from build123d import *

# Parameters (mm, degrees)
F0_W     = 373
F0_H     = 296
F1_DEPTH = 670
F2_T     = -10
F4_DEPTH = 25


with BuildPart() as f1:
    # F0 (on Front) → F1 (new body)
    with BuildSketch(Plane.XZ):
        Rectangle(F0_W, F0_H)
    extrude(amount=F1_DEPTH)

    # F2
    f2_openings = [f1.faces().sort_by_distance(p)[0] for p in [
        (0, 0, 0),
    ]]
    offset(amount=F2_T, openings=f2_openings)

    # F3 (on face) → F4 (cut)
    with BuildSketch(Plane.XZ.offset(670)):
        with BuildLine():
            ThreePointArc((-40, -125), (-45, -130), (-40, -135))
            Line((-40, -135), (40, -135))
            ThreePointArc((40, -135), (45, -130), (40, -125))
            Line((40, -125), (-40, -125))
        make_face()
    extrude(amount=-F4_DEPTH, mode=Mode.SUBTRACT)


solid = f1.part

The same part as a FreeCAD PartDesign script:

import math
import FreeCAD as App
import Part
import Sketcher
from FreeCAD import Vector


def faces_at(feature, points):
    """Names of the faces that lie closest to the given points."""
    faces = feature.Shape.Faces
    near = lambda p: min(range(len(faces)), key=lambda i: faces[i].distToShape(Part.Vertex(*p))[0])
    return sorted({f"Face{near(p) + 1}" for p in points})

doc = App.newDocument("Part")
body = doc.addObject("PartDesign::Body", "Body")

sketch1 = body.newObject("Sketcher::SketchObject", "Sketch")
sketch1.AttachmentSupport = (doc.getObject("XZ_Plane"), [""])
sketch1.MapMode = "FlatFace"
sketch1.addGeometry([
    Part.LineSegment(Vector(-186, 148, 0), Vector(-186, -148, 0)),
    Part.LineSegment(Vector(-186, -148, 0), Vector(186, -148, 0)),
    Part.LineSegment(Vector(186, -148, 0), Vector(186, 148, 0)),
    Part.LineSegment(Vector(186, 148, 0), Vector(-186, 148, 0)),
], False)
sketch1.addConstraint([
    Sketcher.Constraint("Coincident", 0, 2, 1, 1),
    Sketcher.Constraint("Coincident", 1, 2, 2, 1),
    Sketcher.Constraint("Coincident", 2, 2, 3, 1),
    Sketcher.Constraint("Coincident", 3, 2, 0, 1),
    Sketcher.Constraint("Vertical", 0),
    Sketcher.Constraint("Horizontal", 1),
    Sketcher.Constraint("Vertical", 2),
    Sketcher.Constraint("Horizontal", 3),
    Sketcher.Constraint("Symmetric", 0, 2, 2, 2, -1, 1),
    Sketcher.Constraint("DistanceX", 1, 1, 1, 2, 373.0),
    Sketcher.Constraint("DistanceY", 0, 2, 0, 1, 296.0),
])
pad1 = body.newObject("PartDesign::Pad", "Pad")
pad1.Profile = sketch1
pad1.Length = 670
doc.recompute()

thickness = body.newObject("PartDesign::Thickness", "Thickness")
thickness.Base = (pad1, faces_at(pad1, [(0, 0, 0)]))
thickness.Value = 10
thickness.Reversed = True
thickness.Join = "Arc"

sketch2 = body.newObject("Sketcher::SketchObject", "Sketch001")
sketch2.AttachmentSupport = (doc.getObject("XZ_Plane"), [""])
sketch2.MapMode = "FlatFace"
sketch2.AttachmentOffset = App.Placement(Vector(0, 0, 670), App.Rotation())
sketch2.addGeometry([
    Part.ArcOfCircle(Part.Circle(Vector(-40, -130, 0), Vector(0, 0, 1), 5), math.radians(90), math.radians(270)),
    Part.LineSegment(Vector(-40, -135, 0), Vector(40, -135, 0)),
    Part.ArcOfCircle(Part.Circle(Vector(40, -130, 0), Vector(0, 0, 1), 5), math.radians(-90), math.radians(90)),
    Part.LineSegment(Vector(40, -125, 0), Vector(-40, -125, 0)),
], False)
sketch2.addConstraint([
    Sketcher.Constraint("Tangent", 0, 2, 1, 1),
    Sketcher.Constraint("Tangent", 1, 2, 2, 1),
    Sketcher.Constraint("Tangent", 2, 2, 3, 1),
    Sketcher.Constraint("Tangent", 3, 2, 0, 1),
    Sketcher.Constraint("Horizontal", 1),
    Sketcher.Constraint("Horizontal", 3),
    Sketcher.Constraint("Radius", 0, 5.0),
    Sketcher.Constraint("DistanceX", 1, 1, 1, 2, 80.0),
    Sketcher.Constraint("DistanceX", 0, 3, -1, 1, 40.0),
    Sketcher.Constraint("DistanceY", 0, 3, -1, 1, 130.0),
])
pocket1 = body.newObject("PartDesign::Pocket", "Pocket")
pocket1.Profile = sketch2
pocket1.Length = 25

doc.recompute()
